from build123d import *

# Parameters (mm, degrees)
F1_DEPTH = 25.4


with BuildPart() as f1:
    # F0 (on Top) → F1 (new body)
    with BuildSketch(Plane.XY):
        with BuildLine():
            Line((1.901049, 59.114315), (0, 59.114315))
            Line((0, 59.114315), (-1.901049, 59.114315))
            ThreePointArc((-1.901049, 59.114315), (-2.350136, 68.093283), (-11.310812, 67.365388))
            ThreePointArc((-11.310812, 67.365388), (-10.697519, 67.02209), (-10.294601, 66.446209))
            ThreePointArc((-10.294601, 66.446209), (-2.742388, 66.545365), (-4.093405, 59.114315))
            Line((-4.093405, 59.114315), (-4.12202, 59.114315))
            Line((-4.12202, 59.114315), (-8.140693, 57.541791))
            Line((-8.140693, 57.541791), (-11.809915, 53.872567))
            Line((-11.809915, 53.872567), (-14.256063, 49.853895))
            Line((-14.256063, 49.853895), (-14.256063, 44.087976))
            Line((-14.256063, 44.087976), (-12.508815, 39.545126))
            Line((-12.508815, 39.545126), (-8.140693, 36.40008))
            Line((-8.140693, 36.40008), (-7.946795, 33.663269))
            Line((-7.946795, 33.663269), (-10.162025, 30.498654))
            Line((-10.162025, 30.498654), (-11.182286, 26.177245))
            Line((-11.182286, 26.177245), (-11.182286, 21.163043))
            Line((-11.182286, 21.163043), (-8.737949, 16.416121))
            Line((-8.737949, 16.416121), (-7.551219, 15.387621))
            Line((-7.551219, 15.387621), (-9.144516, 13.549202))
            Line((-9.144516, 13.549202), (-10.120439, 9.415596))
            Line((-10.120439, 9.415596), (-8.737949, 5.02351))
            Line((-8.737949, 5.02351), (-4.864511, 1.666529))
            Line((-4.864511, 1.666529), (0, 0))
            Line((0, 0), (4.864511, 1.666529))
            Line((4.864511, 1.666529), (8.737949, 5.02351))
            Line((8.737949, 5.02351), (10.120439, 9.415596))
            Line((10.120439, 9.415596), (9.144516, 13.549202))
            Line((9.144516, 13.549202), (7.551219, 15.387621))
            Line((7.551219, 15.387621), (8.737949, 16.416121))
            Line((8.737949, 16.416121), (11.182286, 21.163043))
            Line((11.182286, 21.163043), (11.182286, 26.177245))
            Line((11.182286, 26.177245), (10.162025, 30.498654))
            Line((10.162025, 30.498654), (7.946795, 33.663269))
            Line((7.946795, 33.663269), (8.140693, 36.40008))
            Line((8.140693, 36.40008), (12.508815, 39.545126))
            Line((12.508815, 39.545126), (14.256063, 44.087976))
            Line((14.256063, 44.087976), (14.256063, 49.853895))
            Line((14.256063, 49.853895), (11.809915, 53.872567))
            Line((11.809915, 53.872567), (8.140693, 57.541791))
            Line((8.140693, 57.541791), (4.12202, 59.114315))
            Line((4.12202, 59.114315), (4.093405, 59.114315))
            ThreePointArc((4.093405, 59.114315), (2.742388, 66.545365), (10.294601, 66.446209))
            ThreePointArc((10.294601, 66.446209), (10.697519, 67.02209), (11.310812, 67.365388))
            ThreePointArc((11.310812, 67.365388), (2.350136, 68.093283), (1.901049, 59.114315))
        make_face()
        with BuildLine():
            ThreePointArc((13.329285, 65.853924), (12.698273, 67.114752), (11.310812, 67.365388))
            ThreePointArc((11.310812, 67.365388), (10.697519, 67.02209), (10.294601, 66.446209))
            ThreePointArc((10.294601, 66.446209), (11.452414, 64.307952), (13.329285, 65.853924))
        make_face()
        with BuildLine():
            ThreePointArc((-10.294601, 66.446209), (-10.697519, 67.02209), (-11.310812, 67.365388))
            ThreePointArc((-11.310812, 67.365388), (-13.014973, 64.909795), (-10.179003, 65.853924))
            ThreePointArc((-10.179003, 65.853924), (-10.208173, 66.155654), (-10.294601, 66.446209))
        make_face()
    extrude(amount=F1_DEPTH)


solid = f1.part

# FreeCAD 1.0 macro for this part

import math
import FreeCAD as App
import Part
import Sketcher
from FreeCAD import Vector
Q = App.Units.Quantity

doc = App.newDocument("Part")
params = doc.addObject("Spreadsheet::Sheet", "Params")
for row, (alias, value) in enumerate([
    ("pad1_length", "1 in"),
], start=1):
    params.set(f"A{row}", alias)
    params.set(f"B{row}", "=" + value)
    params.setAlias(f"B{row}", alias)

body = doc.addObject("PartDesign::Body", "Body")

sketch1 = body.newObject("Sketcher::SketchObject", "Sketch")
sketch1.AttachmentSupport = (doc.getObject("XY_Plane"), [""])
sketch1.MapMode = "FlatFace"
sketch1.addGeometry(Part.LineSegment(Vector(1.901, 59.114, 0), Vector(-1.901, 59.114, 0)), False)
sketch1.addGeometry(Part.ArcOfCircle(Part.Circle(Vector(-6.478, 63.386, 0), Vector(0, 0, 1), 6.26), math.radians(-43), math.radians(141)), False)
sketch1.addGeometry(Part.ArcOfCircle(Part.Circle(Vector(-11.754, 65.854, 0), Vector(0, 0, 1), 1.575), math.radians(74), math.radians(360)), False)
sketch1.addGeometry(Part.ArcOfCircle(Part.Circle(Vector(-11.754, 65.854, 0), Vector(0, 0, 1), 1.575), math.radians(0), math.radians(22)), False)
sketch1.addGeometry(Part.ArcOfCircle(Part.Circle(Vector(-6.478, 63.386, 0), Vector(0, 0, 1), 4.892), math.radians(-61), math.radians(141)), False)
sketch1.addGeometry(Part.LineSegment(Vector(-4.093, 59.114, 0), Vector(-4.122, 59.114, 0)), False)
sketch1.addGeometry(Part.LineSegment(Vector(-4.122, 59.114, 0), Vector(-8.141, 57.542, 0)), False)
sketch1.addGeometry(Part.LineSegment(Vector(-8.141, 57.542, 0), Vector(-11.81, 53.873, 0)), False)
sketch1.addGeometry(Part.LineSegment(Vector(-11.81, 53.873, 0), Vector(-14.256, 49.854, 0)), False)
sketch1.addGeometry(Part.LineSegment(Vector(-14.256, 49.854, 0), Vector(-14.256, 44.088, 0)), False)
sketch1.addGeometry(Part.LineSegment(Vector(-14.256, 44.088, 0), Vector(-12.509, 39.545, 0)), False)
sketch1.addGeometry(Part.LineSegment(Vector(-12.509, 39.545, 0), Vector(-8.141, 36.4, 0)), False)
sketch1.addGeometry(Part.LineSegment(Vector(-8.141, 36.4, 0), Vector(-7.947, 33.663, 0)), False)
sketch1.addGeometry(Part.LineSegment(Vector(-7.947, 33.663, 0), Vector(-10.162, 30.499, 0)), False)
sketch1.addGeometry(Part.LineSegment(Vector(-10.162, 30.499, 0), Vector(-11.182, 26.177, 0)), False)
sketch1.addGeometry(Part.LineSegment(Vector(-11.182, 26.177, 0), Vector(-11.182, 21.163, 0)), False)
sketch1.addGeometry(Part.LineSegment(Vector(-11.182, 21.163, 0), Vector(-8.738, 16.416, 0)), False)
sketch1.addGeometry(Part.LineSegment(Vector(-8.738, 16.416, 0), Vector(-7.551, 15.388, 0)), False)
sketch1.addGeometry(Part.LineSegment(Vector(-7.551, 15.388, 0), Vector(-9.145, 13.549, 0)), False)
sketch1.addGeometry(Part.LineSegment(Vector(-9.145, 13.549, 0), Vector(-10.12, 9.416, 0)), False)
sketch1.addGeometry(Part.LineSegment(Vector(-10.12, 9.416, 0), Vector(-8.738, 5.024, 0)), False)
sketch1.addGeometry(Part.LineSegment(Vector(-8.738, 5.024, 0), Vector(-4.865, 1.667, 0)), False)
sketch1.addGeometry(Part.LineSegment(Vector(-4.865, 1.667, 0), Vector(0, 0, 0)), False)
sketch1.addGeometry(Part.LineSegment(Vector(0, 0, 0), Vector(4.865, 1.667, 0)), False)
sketch1.addGeometry(Part.LineSegment(Vector(4.865, 1.667, 0), Vector(8.738, 5.024, 0)), False)
sketch1.addGeometry(Part.LineSegment(Vector(8.738, 5.024, 0), Vector(10.12, 9.416, 0)), False)
sketch1.addGeometry(Part.LineSegment(Vector(10.12, 9.416, 0), Vector(9.145, 13.549, 0)), False)
sketch1.addGeometry(Part.LineSegment(Vector(9.145, 13.549, 0), Vector(7.551, 15.388, 0)), False)
sketch1.addGeometry(Part.LineSegment(Vector(7.551, 15.388, 0), Vector(8.738, 16.416, 0)), False)
sketch1.addGeometry(Part.LineSegment(Vector(8.738, 16.416, 0), Vector(11.182, 21.163, 0)), False)
sketch1.addGeometry(Part.LineSegment(Vector(11.182, 21.163, 0), Vector(11.182, 26.177, 0)), False)
sketch1.addGeometry(Part.LineSegment(Vector(11.182, 26.177, 0), Vector(10.162, 30.499, 0)), False)
sketch1.addGeometry(Part.LineSegment(Vector(10.162, 30.499, 0), Vector(7.947, 33.663, 0)), False)
sketch1.addGeometry(Part.LineSegment(Vector(7.947, 33.663, 0), Vector(8.141, 36.4, 0)), False)
sketch1.addGeometry(Part.LineSegment(Vector(8.141, 36.4, 0), Vector(12.509, 39.545, 0)), False)
sketch1.addGeometry(Part.LineSegment(Vector(12.509, 39.545, 0), Vector(14.256, 44.088, 0)), False)
sketch1.addGeometry(Part.LineSegment(Vector(14.256, 44.088, 0), Vector(14.256, 49.854, 0)), False)
sketch1.addGeometry(Part.LineSegment(Vector(14.256, 49.854, 0), Vector(11.81, 53.873, 0)), False)
sketch1.addGeometry(Part.LineSegment(Vector(11.81, 53.873, 0), Vector(8.141, 57.542, 0)), False)
sketch1.addGeometry(Part.LineSegment(Vector(8.141, 57.542, 0), Vector(4.122, 59.114, 0)), False)
sketch1.addGeometry(Part.LineSegment(Vector(4.122, 59.114, 0), Vector(4.093, 59.114, 0)), False)
sketch1.addGeometry(Part.ArcOfCircle(Part.Circle(Vector(6.478, 63.386, 0), Vector(0, 0, 1), 4.892), math.radians(39), math.radians(241)), False)
sketch1.addGeometry(Part.ArcOfCircle(Part.Circle(Vector(11.754, 65.854, 0), Vector(0, 0, 1), 1.575), math.radians(158), math.radians(360)), False)
sketch1.addGeometry(Part.ArcOfCircle(Part.Circle(Vector(11.754, 65.854, 0), Vector(0, 0, 1), 1.575), math.radians(0), math.radians(106)), False)
sketch1.addGeometry(Part.ArcOfCircle(Part.Circle(Vector(6.478, 63.386, 0), Vector(0, 0, 1), 6.26), math.radians(39), math.radians(223)), False)
sketch1.addConstraint(Sketcher.Constraint("Coincident", 0, 2, 1, 1))
sketch1.addConstraint(Sketcher.Constraint("Coincident", 1, 2, 2, 1))
sketch1.addConstraint(Sketcher.Constraint("Coincident", 2, 2, 3, 1))
sketch1.addConstraint(Sketcher.Constraint("Coincident", 3, 2, 4, 2))
sketch1.addConstraint(Sketcher.Constraint("Coincident", 4, 1, 5, 1))
sketch1.addConstraint(Sketcher.Constraint("Coincident", 5, 2, 6, 1))
sketch1.addConstraint(Sketcher.Constraint("Coincident", 6, 2, 7, 1))
sketch1.addConstraint(Sketcher.Constraint("Coincident", 7, 2, 8, 1))
sketch1.addConstraint(Sketcher.Constraint("Coincident", 8, 2, 9, 1))
sketch1.addConstraint(Sketcher.Constraint("Coincident", 9, 2, 10, 1))
sketch1.addConstraint(Sketcher.Constraint("Coincident", 10, 2, 11, 1))
sketch1.addConstraint(Sketcher.Constraint("Coincident", 11, 2, 12, 1))
sketch1.addConstraint(Sketcher.Constraint("Coincident", 12, 2, 13, 1))
sketch1.addConstraint(Sketcher.Constraint("Coincident", 13, 2, 14, 1))
sketch1.addConstraint(Sketcher.Constraint("Coincident", 14, 2, 15, 1))
sketch1.addConstraint(Sketcher.Constraint("Coincident", 15, 2, 16, 1))
sketch1.addConstraint(Sketcher.Constraint("Coincident", 16, 2, 17, 1))
sketch1.addConstraint(Sketcher.Constraint("Coincident", 17, 2, 18, 1))
sketch1.addConstraint(Sketcher.Constraint("Coincident", 18, 2, 19, 1))
sketch1.addConstraint(Sketcher.Constraint("Coincident", 19, 2, 20, 1))
sketch1.addConstraint(Sketcher.Constraint("Coincident", 20, 2, 21, 1))
sketch1.addConstraint(Sketcher.Constraint("Coincident", 21, 2, 22, 1))
sketch1.addConstraint(Sketcher.Constraint("Coincident", 22, 2, 23, 1))
sketch1.addConstraint(Sketcher.Constraint("Coincident", 23, 2, 24, 1))
sketch1.addConstraint(Sketcher.Constraint("Coincident", 24, 2, 25, 1))
sketch1.addConstraint(Sketcher.Constraint("Coincident", 25, 2, 26, 1))
sketch1.addConstraint(Sketcher.Constraint("Coincident", 26, 2, 27, 1))
sketch1.addConstraint(Sketcher.Constraint("Coincident", 27, 2, 28, 1))
sketch1.addConstraint(Sketcher.Constraint("Coincident", 28, 2, 29, 1))
sketch1.addConstraint(Sketcher.Constraint("Coincident", 29, 2, 30, 1))
sketch1.addConstraint(Sketcher.Constraint("Coincident", 30, 2, 31, 1))
sketch1.addConstraint(Sketcher.Constraint("Coincident", 31, 2, 32, 1))
sketch1.addConstraint(Sketcher.Constraint("Coincident", 32, 2, 33, 1))
sketch1.addConstraint(Sketcher.Constraint("Coincident", 33, 2, 34, 1))
sketch1.addConstraint(Sketcher.Constraint("Coincident", 34, 2, 35, 1))
sketch1.addConstraint(Sketcher.Constraint("Coincident", 35, 2, 36, 1))
sketch1.addConstraint(Sketcher.Constraint("Coincident", 36, 2, 37, 1))
sketch1.addConstraint(Sketcher.Constraint("Coincident", 37, 2, 38, 1))
sketch1.addConstraint(Sketcher.Constraint("Coincident", 38, 2, 39, 1))
sketch1.addConstraint(Sketcher.Constraint("Coincident", 39, 2, 40, 1))
sketch1.addConstraint(Sketcher.Constraint("Coincident", 40, 2, 41, 2))
sketch1.addConstraint(Sketcher.Constraint("Coincident", 41, 1, 42, 1))
sketch1.addConstraint(Sketcher.Constraint("Tangent", 42, 2, 43, 1))
sketch1.addConstraint(Sketcher.Constraint("Coincident", 43, 2, 44, 1))
sketch1.addConstraint(Sketcher.Constraint("Coincident", 44, 2, 0, 1))
sketch1.addConstraint(Sketcher.Constraint("Horizontal", 0))
sketch1.addConstraint(Sketcher.Constraint("Horizontal", 5))
sketch1.addConstraint(Sketcher.Constraint("Vertical", 9))
sketch1.addConstraint(Sketcher.Constraint("Vertical", 15))
sketch1.addConstraint(Sketcher.Constraint("Vertical", 30))
sketch1.addConstraint(Sketcher.Constraint("Vertical", 36))
sketch1.addConstraint(Sketcher.Constraint("Horizontal", 40))
sketch1.addConstraint(Sketcher.Constraint("Coincident", 22, 2, -1, 1))
sketch1.addConstraint(Sketcher.Constraint("Coincident", 4, 3, 1, 3))
sketch1.addConstraint(Sketcher.Constraint("Coincident", 44, 3, 41, 3))
sketch1.addConstraint(Sketcher.Constraint("Equal", 4, 41))
sketch1.addConstraint(Sketcher.Constraint("Equal", 2, 42))
sketch1.addConstraint(Sketcher.Constraint("Equal", 42, 43))
sketch1.addConstraint(Sketcher.Constraint("Equal", 1, 44))
sketch1.addConstraint(Sketcher.Constraint("Symmetric", 1, 3, 41, 3, -2))
sketch1.addConstraint(Sketcher.Constraint("Symmetric", 2, 3, 42, 3, -2))
sketch1.addConstraint(Sketcher.Constraint("Symmetric", 21, 2, 23, 2, -2))
sketch1.addConstraint(Sketcher.Constraint("Symmetric", 20, 2, 24, 2, -2))
sketch1.addConstraint(Sketcher.Constraint("Symmetric", 19, 2, 25, 2, -2))
sketch1.addConstraint(Sketcher.Constraint("Symmetric", 18, 2, 26, 2, -2))
sketch1.addConstraint(Sketcher.Constraint("Symmetric", 17, 2, 27, 2, -2))
sketch1.addConstraint(Sketcher.Constraint("Symmetric", 16, 2, 28, 2, -2))
sketch1.addConstraint(Sketcher.Constraint("Symmetric", 15, 2, 29, 2, -2))
sketch1.addConstraint(Sketcher.Constraint("Symmetric", 13, 2, 31, 2, -2))
sketch1.addConstraint(Sketcher.Constraint("Symmetric", 12, 2, 32, 2, -2))
sketch1.addConstraint(Sketcher.Constraint("Symmetric", 11, 2, 33, 2, -2))
sketch1.addConstraint(Sketcher.Constraint("Symmetric", 10, 2, 34, 2, -2))
sketch1.addConstraint(Sketcher.Constraint("Symmetric", 9, 2, 35, 2, -2))
sketch1.addConstraint(Sketcher.Constraint("Symmetric", 7, 2, 37, 2, -2))
sketch1.addConstraint(Sketcher.Constraint("Symmetric", 6, 2, 38, 2, -2))
sketch1.addConstraint(Sketcher.Constraint("Symmetric", 5, 2, 39, 2, -2))
sketch1.addConstraint(Sketcher.Constraint("Perpendicular", 17, 18))
sketch1.addConstraint(Sketcher.Constraint("Parallel", 14, 19))
sketch1.addConstraint(Sketcher.Constraint("Perpendicular", 18, 21))
sketch1.addConstraint(Sketcher.Constraint("Parallel", 26, 31))
sketch1.addConstraint(Sketcher.Constraint("Perpendicular", 7, 38))
sketch1.addConstraint(Sketcher.Constraint("Horizontal", 43, 3, 2, 2))
sketch1.addConstraint(Sketcher.Constraint("Horizontal", 0, 2, 4, 1))
sketch1.addConstraint(Sketcher.Constraint("Horizontal", 8, 2, 36, 2))
sketch1.addConstraint(Sketcher.Constraint("Horizontal", 3, 2, 41, 1))
sketch1.addConstraint(Sketcher.Constraint("Horizontal", 2, 2, 42, 2))
sketch1.addConstraint(Sketcher.Constraint("Vertical", 6, 2, 11, 2))
sketch1.addConstraint(Sketcher.Constraint("Vertical", 16, 2, 20, 2))
sketch1.addConstraint(Sketcher.Constraint("Radius", 2, 1.575141))
sketch1.addConstraint(Sketcher.Constraint("DistanceX", 0, 2, 0, 1, 3.802098))
sketch1.addConstraint(Sketcher.Constraint("DistanceY", -1, 1, 14, 2, Q("1.0306002 in")))
sketch1.addConstraint(Sketcher.Constraint("Radius", 1, 6.260496))
sketch1.addConstraint(Sketcher.Constraint("Radius", 3, 1.575156))
sketch1.addConstraint(Sketcher.Constraint("Radius", 4, 4.892145))
sketch1.addConstraint(Sketcher.Constraint("DistanceY", 9, 2, 9, 1, 5.765919))
sketch1.addConstraint(Sketcher.Constraint("DistanceX", 3, 2, -1, 1, 10.294601))
sketch1.addConstraint(Sketcher.Constraint("DistanceY", -1, 1, 18, 2, 13.549202))
sketch1.addConstraint(Sketcher.Constraint("DistanceX", 3, 2, 2, 2, 0.115598))
sketch1.addConstraint(Sketcher.Constraint("DistanceX", 10, 2, 7, 2, 0.6989))
sketch1.addConstraint(Sketcher.Constraint("DistanceX", 11, 2, 12, 2, 0.193898))
sketch1.addConstraint(Sketcher.Constraint("DistanceY", 17, 2, 16, 2, 1.0285))
sketch1.addConstraint(Sketcher.Constraint("DistanceX", 20, 2, 24, 2, 17.475898))
sketch1.addConstraint(Sketcher.Constraint("Distance", 8, 4.704611))
sketch1.addConstraint(Sketcher.Constraint("Distance", 12, 2.743671))
sketch1.addConstraint(Sketcher.Constraint("Distance", 19, 4.247249))
sketch1.addConstraint(Sketcher.Constraint("Distance", 20, 4.60453))
sketch1.addConstraint(Sketcher.Constraint("Distance", 22, 5.14206))
sketch1.addConstraint(Sketcher.Constraint("DistanceX", 5, 2, 5, 1, 0.028615))
sketch1.addConstraint(Sketcher.Constraint("DistanceY", 15, 2, 15, 1, 5.014202))
sketch1.addConstraint(Sketcher.Constraint("DistanceY", -1, 1, 1, 3, 63.386128))
sketch1.addConstraint(Sketcher.Constraint("DistanceY", -1, 1, 3, 3, 65.85392))
sketch1.addConstraint(Sketcher.Constraint("DistanceY", -1, 1, 6, 2, 57.541791))
sketch1.addConstraint(Sketcher.Constraint("DistanceY", -1, 1, 11, 2, 36.40008))
sketch1.addConstraint(Sketcher.Constraint("DistanceY", -1, 1, 16, 2, 16.416121))
sketch1.addConstraint(Sketcher.Constraint("DistanceX", 17, 2, -1, 1, 7.551219))
sketch1.addConstraint(Sketcher.Constraint("DistanceX", 19, 2, -1, 1, 10.120439))
sketch1.addConstraint(Sketcher.Constraint("DistanceX", 7, 2, 6, 2, 3.669222))
sketch1.addConstraint(Sketcher.Constraint("DistanceX", 7, 2, 4, 1, 7.71651))
sketch1.addConstraint(Sketcher.Constraint("DistanceY", 8, 2, 7, 2, 4.018672))
sketch1.addConstraint(Sketcher.Constraint("DistanceY", 10, 2, 9, 2, 4.54285))
sketch1.addConstraint(Sketcher.Constraint("DistanceX", 13, 2, 12, 2, 2.21523))
sketch1.addConstraint(Sketcher.Constraint("DistanceY", 13, 2, 9, 2, 13.589322))
pad1 = body.newObject("PartDesign::Pad", "Pad")
pad1.Profile = sketch1
pad1.setExpression("Length", "Params.pad1_length")

doc.recompute()
